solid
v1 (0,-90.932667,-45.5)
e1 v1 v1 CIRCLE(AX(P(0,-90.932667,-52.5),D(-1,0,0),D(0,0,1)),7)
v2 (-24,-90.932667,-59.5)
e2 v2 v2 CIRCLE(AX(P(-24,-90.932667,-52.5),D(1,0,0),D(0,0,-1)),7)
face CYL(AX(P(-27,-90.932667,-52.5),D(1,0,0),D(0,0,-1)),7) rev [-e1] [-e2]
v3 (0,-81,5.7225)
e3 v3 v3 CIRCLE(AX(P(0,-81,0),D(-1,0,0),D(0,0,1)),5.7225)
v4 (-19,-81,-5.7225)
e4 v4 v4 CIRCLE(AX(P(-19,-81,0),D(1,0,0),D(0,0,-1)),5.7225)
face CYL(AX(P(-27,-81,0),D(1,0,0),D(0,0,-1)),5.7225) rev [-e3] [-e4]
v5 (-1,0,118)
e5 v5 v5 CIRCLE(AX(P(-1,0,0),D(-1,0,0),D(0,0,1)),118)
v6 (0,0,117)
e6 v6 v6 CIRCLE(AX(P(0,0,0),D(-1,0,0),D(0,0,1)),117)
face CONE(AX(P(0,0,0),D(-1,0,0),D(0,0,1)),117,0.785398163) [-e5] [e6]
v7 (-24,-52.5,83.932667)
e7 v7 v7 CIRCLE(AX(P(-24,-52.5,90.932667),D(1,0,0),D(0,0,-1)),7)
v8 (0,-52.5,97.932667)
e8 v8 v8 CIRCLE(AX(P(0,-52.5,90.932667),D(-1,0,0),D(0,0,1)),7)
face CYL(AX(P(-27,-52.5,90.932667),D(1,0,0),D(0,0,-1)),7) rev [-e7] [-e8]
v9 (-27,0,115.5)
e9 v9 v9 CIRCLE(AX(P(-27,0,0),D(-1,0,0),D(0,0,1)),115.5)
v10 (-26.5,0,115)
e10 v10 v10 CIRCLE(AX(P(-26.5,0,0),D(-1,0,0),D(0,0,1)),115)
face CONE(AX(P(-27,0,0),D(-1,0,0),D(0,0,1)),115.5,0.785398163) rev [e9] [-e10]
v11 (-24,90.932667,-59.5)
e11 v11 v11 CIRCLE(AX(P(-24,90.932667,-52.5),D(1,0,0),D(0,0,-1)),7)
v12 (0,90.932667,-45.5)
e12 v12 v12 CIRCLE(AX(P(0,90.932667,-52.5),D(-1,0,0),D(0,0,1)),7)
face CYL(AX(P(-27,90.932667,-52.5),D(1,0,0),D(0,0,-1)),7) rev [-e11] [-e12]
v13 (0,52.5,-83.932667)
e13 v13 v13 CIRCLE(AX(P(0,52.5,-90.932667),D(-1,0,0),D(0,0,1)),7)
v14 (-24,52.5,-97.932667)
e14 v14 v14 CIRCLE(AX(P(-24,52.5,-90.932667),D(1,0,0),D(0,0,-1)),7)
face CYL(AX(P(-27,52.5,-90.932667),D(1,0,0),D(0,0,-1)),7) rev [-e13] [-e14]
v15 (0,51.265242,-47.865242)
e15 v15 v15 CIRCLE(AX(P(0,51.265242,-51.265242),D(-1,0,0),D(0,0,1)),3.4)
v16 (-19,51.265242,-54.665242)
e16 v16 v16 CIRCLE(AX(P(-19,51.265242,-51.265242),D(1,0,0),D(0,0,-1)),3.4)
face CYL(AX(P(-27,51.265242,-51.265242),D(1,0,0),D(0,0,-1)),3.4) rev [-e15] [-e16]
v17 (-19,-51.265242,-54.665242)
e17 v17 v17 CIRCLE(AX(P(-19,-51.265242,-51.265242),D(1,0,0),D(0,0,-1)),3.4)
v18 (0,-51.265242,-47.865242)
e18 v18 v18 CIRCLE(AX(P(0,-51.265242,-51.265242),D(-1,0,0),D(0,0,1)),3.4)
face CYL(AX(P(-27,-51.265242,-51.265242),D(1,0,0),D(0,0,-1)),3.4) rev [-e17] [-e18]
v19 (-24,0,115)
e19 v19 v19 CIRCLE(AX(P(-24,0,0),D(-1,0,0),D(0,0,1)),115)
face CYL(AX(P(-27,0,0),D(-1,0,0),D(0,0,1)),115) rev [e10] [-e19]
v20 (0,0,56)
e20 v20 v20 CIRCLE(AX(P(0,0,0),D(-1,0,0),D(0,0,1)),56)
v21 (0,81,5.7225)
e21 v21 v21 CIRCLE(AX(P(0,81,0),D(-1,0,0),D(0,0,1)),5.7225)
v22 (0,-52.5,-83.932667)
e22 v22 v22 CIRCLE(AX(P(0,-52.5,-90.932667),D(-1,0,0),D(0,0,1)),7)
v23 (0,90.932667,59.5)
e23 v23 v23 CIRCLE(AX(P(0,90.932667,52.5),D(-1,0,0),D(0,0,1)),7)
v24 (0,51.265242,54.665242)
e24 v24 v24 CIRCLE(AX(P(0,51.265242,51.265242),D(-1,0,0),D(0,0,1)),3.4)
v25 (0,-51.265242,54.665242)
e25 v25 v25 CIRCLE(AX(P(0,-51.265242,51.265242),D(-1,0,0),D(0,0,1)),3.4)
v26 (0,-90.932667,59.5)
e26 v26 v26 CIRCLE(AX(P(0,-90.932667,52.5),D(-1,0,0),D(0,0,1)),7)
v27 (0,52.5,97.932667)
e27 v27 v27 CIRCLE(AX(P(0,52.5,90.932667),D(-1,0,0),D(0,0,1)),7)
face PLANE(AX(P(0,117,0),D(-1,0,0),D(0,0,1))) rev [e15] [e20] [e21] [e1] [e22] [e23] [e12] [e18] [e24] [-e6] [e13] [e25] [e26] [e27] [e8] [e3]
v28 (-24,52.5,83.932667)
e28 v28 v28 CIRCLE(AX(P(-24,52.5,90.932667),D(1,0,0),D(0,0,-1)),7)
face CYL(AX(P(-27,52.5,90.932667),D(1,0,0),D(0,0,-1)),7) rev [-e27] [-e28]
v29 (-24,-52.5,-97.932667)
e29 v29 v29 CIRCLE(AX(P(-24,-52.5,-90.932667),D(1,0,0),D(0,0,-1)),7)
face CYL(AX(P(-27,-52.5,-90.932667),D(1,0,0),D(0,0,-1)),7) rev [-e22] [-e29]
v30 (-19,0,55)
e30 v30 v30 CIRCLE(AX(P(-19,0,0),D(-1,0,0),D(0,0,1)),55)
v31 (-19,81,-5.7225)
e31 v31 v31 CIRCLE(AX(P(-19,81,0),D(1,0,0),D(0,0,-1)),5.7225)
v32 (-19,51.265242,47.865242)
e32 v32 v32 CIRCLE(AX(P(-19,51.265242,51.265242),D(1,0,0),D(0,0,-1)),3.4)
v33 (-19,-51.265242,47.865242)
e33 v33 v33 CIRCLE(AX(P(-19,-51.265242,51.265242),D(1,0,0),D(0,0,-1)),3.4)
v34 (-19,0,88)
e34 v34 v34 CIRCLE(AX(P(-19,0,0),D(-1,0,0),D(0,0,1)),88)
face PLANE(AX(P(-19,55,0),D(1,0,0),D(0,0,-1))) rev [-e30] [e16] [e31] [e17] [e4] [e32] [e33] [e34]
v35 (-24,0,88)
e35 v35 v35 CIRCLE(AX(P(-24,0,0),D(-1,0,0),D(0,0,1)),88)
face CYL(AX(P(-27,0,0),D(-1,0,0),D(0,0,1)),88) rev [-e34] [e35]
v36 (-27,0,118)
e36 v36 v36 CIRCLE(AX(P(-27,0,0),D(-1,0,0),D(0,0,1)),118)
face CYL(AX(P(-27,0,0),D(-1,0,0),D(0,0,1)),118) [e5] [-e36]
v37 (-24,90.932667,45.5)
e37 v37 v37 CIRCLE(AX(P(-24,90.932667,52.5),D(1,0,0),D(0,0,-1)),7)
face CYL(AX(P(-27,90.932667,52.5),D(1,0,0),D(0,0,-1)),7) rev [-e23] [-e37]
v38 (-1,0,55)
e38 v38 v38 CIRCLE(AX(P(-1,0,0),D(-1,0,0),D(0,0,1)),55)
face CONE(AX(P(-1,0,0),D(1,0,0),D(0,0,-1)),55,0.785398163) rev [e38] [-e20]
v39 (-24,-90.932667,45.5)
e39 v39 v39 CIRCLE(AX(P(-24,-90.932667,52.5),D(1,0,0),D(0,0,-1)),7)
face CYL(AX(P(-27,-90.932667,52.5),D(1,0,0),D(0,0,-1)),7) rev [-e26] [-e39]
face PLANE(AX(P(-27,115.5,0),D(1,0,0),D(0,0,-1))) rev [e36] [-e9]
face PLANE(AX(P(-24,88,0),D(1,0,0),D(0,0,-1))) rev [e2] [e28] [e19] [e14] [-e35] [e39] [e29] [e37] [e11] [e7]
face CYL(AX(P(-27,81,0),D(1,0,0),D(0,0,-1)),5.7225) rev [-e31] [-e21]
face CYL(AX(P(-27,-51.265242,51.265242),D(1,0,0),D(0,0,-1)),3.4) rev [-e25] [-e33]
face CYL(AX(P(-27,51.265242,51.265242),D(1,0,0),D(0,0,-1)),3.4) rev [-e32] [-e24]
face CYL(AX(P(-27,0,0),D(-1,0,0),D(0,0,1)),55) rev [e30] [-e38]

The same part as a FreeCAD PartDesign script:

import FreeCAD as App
import Part
import Sketcher

V = App.Vector


def add_polygon(sketch, points):
    """Adds a closed chain of lines whose ends are joined by coincident constraints."""
    first, n = sketch.GeometryCount, len(points)
    for a, b in zip(points, points[1:] + points[:1]):
        sketch.addGeometry(Part.LineSegment(App.Vector(*a, 0), App.Vector(*b, 0)), False)
    for i in range(n):
        sketch.addConstraint(Sketcher.Constraint("Coincident", first + i, 2, first + (i + 1) % n, 1))

doc = App.newDocument("Part")
body = doc.addObject("PartDesign::Body", "Body")

sketch1 = body.newObject("Sketcher::SketchObject", "Sketch")
sketch1.AttachmentSupport = (doc.getObject("XY_Plane"), [""])
sketch1.MapMode = "FlatFace"
add_polygon(sketch1, [(0, 56), (0, 117), (-1, 118), (-27, 118), (-27, 115.5), (-26.5, 115), (-24, 115), (-24, 88), (-19, 88), (-19, 55), (-1, 55)])
sketch1.addConstraint(Sketcher.Constraint("Vertical", 0))
sketch1.addConstraint(Sketcher.Constraint("Horizontal", 2))
sketch1.addConstraint(Sketcher.Constraint("Vertical", 3))
sketch1.addConstraint(Sketcher.Constraint("Horizontal", 5))
sketch1.addConstraint(Sketcher.Constraint("Vertical", 6))
sketch1.addConstraint(Sketcher.Constraint("Horizontal", 7))
sketch1.addConstraint(Sketcher.Constraint("Vertical", 8))
sketch1.addConstraint(Sketcher.Constraint("Horizontal", 9))
sketch1.addConstraint(Sketcher.Constraint("PointOnObject", 0, 2, -2))
sketch1.addConstraint(Sketcher.Constraint("Parallel", 1, 4))
sketch1.addConstraint(Sketcher.Constraint("Perpendicular", 4, 10))
sketch1.addConstraint(Sketcher.Constraint("Vertical", 1, 2, 9, 2))
sketch1.addConstraint(Sketcher.Constraint("Equal", 5, 3))
sketch1.addConstraint(Sketcher.Constraint("Equal", 1, 10))
sketch1.addConstraint(Sketcher.Constraint("DistanceX", 2, 2, 2, 1, 26.0))
sketch1.addConstraint(Sketcher.Constraint("DistanceX", 7, 1, 7, 2, 5.0))
sketch1.addConstraint(Sketcher.Constraint("DistanceX", 9, 1, 9, 2, 18.0))
sketch1.addConstraint(Sketcher.Constraint("DistanceY", 0, 1, 0, 2, 61.0))
sketch1.addConstraint(Sketcher.Constraint("DistanceY", 6, 2, 6, 1, 27.0))
sketch1.addConstraint(Sketcher.Constraint("DistanceY", 8, 2, 8, 1, 33.0))
sketch1.addConstraint(Sketcher.Constraint("DistanceX", 5, 1, 5, 2, 2.5))
sketch1.addConstraint(Sketcher.Constraint("DistanceY", -1, 1, 0, 2, 117.0))
revolution = body.newObject("PartDesign::Revolution", "Revolution")
revolution.Profile = sketch1
revolution.ReferenceAxis = (sketch1, ["H_Axis"])
revolution.Angle = 360

sketch2 = body.newObject("Sketcher::SketchObject", "Sketch001")
sketch2.AttachmentSupport = (doc.getObject("YZ_Plane"), [""])
sketch2.MapMode = "FlatFace"
sketch2.addGeometry(Part.Circle(V(52, -91, 0), V(0, 0, 1), 7), False)
sketch2.addGeometry(Part.Circle(V(91, -52, 0), V(0, 0, 1), 7), False)
sketch2.addGeometry(Part.Circle(V(91, 52, 0), V(0, 0, 1), 7), False)
sketch2.addGeometry(Part.Circle(V(52, 91, 0), V(0, 0, 1), 7), False)
sketch2.addGeometry(Part.Circle(V(-52, 91, 0), V(0, 0, 1), 7), False)
sketch2.addGeometry(Part.Circle(V(-91, 52, 0), V(0, 0, 1), 7), False)
sketch2.addGeometry(Part.Circle(V(-91, -52, 0), V(0, 0, 1), 7), False)
sketch2.addGeometry(Part.Circle(V(-52, -91, 0), V(0, 0, 1), 7), False)
sketch2.addConstraint(Sketcher.Constraint("Equal", 0, 1))
sketch2.addConstraint(Sketcher.Constraint("Equal", 1, 2))
sketch2.addConstraint(Sketcher.Constraint("Equal", 2, 3))
sketch2.addConstraint(Sketcher.Constraint("Equal", 3, 4))
sketch2.addConstraint(Sketcher.Constraint("Equal", 4, 5))
sketch2.addConstraint(Sketcher.Constraint("Equal", 5, 6))
sketch2.addConstraint(Sketcher.Constraint("Equal", 6, 7))
sketch2.addConstraint(Sketcher.Constraint("Symmetric", 0, 3, 4, 3, -1, 1))
sketch2.addConstraint(Sketcher.Constraint("Symmetric", 1, 3, 5, 3, -1, 1))
sketch2.addConstraint(Sketcher.Constraint("Symmetric", 2, 3, 6, 3, -1, 1))
sketch2.addConstraint(Sketcher.Constraint("Symmetric", 3, 3, 7, 3, -1, 1))
sketch2.addConstraint(Sketcher.Constraint("Symmetric", 3, 3, 4, 3, -2))
sketch2.addConstraint(Sketcher.Constraint("Symmetric", 2, 3, 5, 3, -2))
sketch2.addConstraint(Sketcher.Constraint("Diameter", 0, 14.0))
sketch2.addConstraint(Sketcher.Constraint("DistanceY", 1, 3, 2, 3, 105.0))
sketch2.addConstraint(Sketcher.Constraint("DistanceX", 4, 3, 3, 3, 105.0))
sketch2.addConstraint(Sketcher.Constraint("DistanceY", 0, 3, -1, 1, 90.932667))
sketch2.addConstraint(Sketcher.Constraint("DistanceX", -1, 1, 1, 3, 90.932667))
pocket1 = body.newObject("PartDesign::Pocket", "Pocket")
pocket1.Profile = sketch2
pocket1.Type = "ThroughAll"
pocket1.Midplane = True

sketch3 = body.newObject("Sketcher::SketchObject", "Sketch002")
sketch3.AttachmentSupport = (doc.getObject("YZ_Plane"), [""])
sketch3.MapMode = "FlatFace"
sketch3.addGeometry(Part.Circle(V(51.3, -51.3, 0), V(0, 0, 1), 3.4), False)
sketch3.addGeometry(Part.Circle(V(51.3, 51.3, 0), V(0, 0, 1), 3.4), False)
sketch3.addGeometry(Part.Circle(V(-51.3, 51.3, 0), V(0, 0, 1), 3.4), False)
sketch3.addGeometry(Part.Circle(V(-51.3, -51.3, 0), V(0, 0, 1), 3.4), False)
sketch3.addConstraint(Sketcher.Constraint("Equal", 0, 1))
sketch3.addConstraint(Sketcher.Constraint("Equal", 1, 2))
sketch3.addConstraint(Sketcher.Constraint("Equal", 2, 3))
sketch3.addConstraint(Sketcher.Constraint("Symmetric", 0, 3, 2, 3, -1, 1))
sketch3.addConstraint(Sketcher.Constraint("Symmetric", 1, 3, 3, 3, -1, 1))
sketch3.addConstraint(Sketcher.Constraint("Symmetric", 1, 3, 2, 3, -2))
sketch3.addConstraint(Sketcher.Constraint("Diameter", 0, 6.8))
sketch3.addConstraint(Sketcher.Constraint("DistanceX", -1, 1, 0, 3, 51.265242))
sketch3.addConstraint(Sketcher.Constraint("DistanceY", 0, 3, -1, 1, 51.265242))
pocket2 = body.newObject("PartDesign::Pocket", "Pocket001")
pocket2.Profile = sketch3
pocket2.Type = "ThroughAll"
pocket2.Midplane = True

sketch4 = body.newObject("Sketcher::SketchObject", "Sketch003")
sketch4.AttachmentSupport = (doc.getObject("YZ_Plane"), [""])
sketch4.MapMode = "FlatFace"
sketch4.addGeometry(Part.Circle(V(81, 0, 0), V(0, 0, 1), 6), False)
sketch4.addGeometry(Part.Circle(V(-81, 0, 0), V(0, 0, 1), 6), False)
sketch4.addConstraint(Sketcher.Constraint("Equal", 0, 1))
sketch4.addConstraint(Sketcher.Constraint("Symmetric", 0, 3, 1, 3, -1, 1))
sketch4.addConstraint(Sketcher.Constraint("PointOnObject", 0, 3, -1))
sketch4.addConstraint(Sketcher.Constraint("Diameter", 0, 11.445))
sketch4.addConstraint(Sketcher.Constraint("DistanceX", -1, 1, 0, 3, 81.0))
pocket3 = body.newObject("PartDesign::Pocket", "Pocket002")
pocket3.Profile = sketch4
pocket3.Type = "ThroughAll"
pocket3.Midplane = True

doc.recompute()
